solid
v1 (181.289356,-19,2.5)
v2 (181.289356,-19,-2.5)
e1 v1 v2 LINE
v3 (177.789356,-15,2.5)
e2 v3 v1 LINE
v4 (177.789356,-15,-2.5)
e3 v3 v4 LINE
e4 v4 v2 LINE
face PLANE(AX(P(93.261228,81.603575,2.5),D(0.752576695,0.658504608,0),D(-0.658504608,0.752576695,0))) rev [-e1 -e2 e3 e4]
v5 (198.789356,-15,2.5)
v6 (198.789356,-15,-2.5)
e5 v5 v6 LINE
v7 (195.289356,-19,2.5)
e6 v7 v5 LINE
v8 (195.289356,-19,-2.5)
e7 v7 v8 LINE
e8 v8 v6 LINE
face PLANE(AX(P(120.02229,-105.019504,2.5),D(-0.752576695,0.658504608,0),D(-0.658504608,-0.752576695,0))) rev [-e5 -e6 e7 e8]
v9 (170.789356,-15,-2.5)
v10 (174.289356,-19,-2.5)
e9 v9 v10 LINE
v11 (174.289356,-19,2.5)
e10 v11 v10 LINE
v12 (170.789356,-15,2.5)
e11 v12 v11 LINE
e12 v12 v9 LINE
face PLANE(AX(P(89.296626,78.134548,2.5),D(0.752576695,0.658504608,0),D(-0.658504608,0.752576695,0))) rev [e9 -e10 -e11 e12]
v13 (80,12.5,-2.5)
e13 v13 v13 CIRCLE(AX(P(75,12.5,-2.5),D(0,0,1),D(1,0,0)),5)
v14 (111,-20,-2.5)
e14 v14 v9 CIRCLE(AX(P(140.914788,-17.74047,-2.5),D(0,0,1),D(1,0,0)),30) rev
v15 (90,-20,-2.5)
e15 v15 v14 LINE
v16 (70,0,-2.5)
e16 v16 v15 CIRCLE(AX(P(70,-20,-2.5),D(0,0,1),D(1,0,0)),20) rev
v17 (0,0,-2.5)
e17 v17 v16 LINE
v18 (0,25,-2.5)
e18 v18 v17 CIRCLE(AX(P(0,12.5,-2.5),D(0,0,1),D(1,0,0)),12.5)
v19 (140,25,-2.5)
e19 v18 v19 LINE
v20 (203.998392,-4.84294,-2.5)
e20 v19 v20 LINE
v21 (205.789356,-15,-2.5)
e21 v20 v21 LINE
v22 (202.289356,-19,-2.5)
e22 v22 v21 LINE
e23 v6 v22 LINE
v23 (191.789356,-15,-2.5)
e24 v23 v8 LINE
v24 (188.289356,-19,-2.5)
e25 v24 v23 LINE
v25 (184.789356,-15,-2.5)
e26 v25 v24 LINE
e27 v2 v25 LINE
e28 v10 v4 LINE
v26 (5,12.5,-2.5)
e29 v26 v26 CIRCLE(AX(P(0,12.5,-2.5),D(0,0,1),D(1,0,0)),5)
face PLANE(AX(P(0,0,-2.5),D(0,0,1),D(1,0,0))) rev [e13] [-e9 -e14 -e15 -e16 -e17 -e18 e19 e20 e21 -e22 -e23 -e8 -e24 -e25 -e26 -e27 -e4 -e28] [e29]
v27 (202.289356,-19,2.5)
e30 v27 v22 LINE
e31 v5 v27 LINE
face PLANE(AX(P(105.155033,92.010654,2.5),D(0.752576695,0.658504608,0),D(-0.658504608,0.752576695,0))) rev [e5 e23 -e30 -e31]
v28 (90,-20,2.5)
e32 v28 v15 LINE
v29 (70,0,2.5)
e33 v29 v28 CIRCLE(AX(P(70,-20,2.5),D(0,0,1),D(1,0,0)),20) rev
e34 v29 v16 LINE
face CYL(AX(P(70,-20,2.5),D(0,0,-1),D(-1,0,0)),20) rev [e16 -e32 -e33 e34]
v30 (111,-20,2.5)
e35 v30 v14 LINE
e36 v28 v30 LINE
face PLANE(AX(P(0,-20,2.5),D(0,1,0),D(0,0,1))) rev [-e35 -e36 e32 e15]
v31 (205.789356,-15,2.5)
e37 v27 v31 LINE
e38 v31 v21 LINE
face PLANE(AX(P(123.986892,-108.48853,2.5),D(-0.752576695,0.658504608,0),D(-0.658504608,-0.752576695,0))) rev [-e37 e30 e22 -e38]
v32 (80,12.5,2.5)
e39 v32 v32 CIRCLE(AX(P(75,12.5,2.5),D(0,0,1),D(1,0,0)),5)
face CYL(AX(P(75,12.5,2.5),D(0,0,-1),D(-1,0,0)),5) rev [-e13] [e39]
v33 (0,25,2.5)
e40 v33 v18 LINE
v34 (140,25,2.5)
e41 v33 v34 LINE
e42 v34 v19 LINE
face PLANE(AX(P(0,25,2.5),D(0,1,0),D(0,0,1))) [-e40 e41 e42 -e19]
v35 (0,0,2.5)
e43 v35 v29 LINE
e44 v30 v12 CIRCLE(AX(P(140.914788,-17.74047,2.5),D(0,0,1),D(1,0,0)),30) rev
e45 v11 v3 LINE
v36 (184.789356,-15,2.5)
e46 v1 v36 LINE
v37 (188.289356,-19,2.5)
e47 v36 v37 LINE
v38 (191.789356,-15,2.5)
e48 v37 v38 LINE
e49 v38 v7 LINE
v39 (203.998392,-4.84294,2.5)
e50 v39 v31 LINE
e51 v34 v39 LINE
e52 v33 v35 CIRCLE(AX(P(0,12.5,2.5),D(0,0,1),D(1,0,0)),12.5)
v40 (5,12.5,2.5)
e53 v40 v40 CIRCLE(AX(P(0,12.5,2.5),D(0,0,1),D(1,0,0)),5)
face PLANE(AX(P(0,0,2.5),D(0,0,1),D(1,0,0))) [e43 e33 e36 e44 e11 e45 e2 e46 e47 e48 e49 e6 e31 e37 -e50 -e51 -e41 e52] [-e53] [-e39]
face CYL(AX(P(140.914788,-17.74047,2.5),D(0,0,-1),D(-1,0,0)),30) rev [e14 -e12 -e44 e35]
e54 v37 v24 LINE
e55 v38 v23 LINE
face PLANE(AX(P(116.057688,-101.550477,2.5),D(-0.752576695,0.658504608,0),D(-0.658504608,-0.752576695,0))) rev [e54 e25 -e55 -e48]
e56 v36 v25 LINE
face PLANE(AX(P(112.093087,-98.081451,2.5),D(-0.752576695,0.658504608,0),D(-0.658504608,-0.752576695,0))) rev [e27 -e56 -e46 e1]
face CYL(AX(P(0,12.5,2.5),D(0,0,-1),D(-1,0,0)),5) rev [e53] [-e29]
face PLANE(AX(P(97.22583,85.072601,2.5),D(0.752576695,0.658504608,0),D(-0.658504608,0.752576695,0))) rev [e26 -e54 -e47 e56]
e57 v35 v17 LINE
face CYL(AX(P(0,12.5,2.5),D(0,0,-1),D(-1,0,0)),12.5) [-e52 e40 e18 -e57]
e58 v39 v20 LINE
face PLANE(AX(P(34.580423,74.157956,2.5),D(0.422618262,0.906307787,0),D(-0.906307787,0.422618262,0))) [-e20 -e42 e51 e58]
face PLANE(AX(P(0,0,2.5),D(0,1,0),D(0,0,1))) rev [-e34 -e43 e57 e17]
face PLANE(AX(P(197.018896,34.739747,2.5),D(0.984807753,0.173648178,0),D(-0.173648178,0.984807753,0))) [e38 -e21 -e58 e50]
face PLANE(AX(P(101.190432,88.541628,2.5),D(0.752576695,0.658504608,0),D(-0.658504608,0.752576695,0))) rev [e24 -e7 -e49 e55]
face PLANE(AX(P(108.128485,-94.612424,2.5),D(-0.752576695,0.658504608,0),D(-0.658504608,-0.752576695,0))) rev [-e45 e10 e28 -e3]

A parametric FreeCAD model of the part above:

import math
import FreeCAD as App
import Part
import Sketcher
from FreeCAD import Vector
Q = App.Units.Quantity

doc = App.newDocument("Part")
body = doc.addObject("PartDesign::Body", "Body")

# Sketch on XY plane
sketch1 = body.newObject("Sketcher::SketchObject", "Sketch")
sketch1.AttachmentSupport = (doc.getObject("XY_Plane"), [""])
sketch1.MapMode = "FlatFace"
sketch1.addGeometry(Part.LineSegment(Vector(140, 25, 0), Vector(0, 25, 0)), False)
sketch1.addGeometry(Part.ArcOfCircle(Part.Circle(Vector(0, 12.5, 0), Vector(0, 0, 1), 12.5), math.radians(90), math.radians(270)), False)
sketch1.addGeometry(Part.LineSegment(Vector(0, 0, 0), Vector(70, 0, 0)), False)
sketch1.addGeometry(Part.ArcOfCircle(Part.Circle(Vector(70, -20, 0), Vector(0, 0, 1), 20), math.radians(0), math.radians(90)), False)
sketch1.addGeometry(Part.LineSegment(Vector(90, -20, 0), Vector(111, -20, 0)), False)
sketch1.addGeometry(Part.ArcOfCircle(Part.Circle(Vector(140.914788, -17.74047, 0), Vector(0, 0, 1), 30), math.radians(5.241218), math.radians(184.319475)), False)
sketch1.addGeometry(Part.LineSegment(Vector(170.789356, -15, 0), Vector(174.289356, -19, 0)), False)
sketch1.addGeometry(Part.LineSegment(Vector(174.289356, -19, 0), Vector(177.789356, -15, 0)), False)
sketch1.addGeometry(Part.LineSegment(Vector(177.789356, -15, 0), Vector(181.289356, -19, 0)), False)
sketch1.addGeometry(Part.LineSegment(Vector(181.289356, -19, 0), Vector(184.789356, -15, 0)), False)
sketch1.addGeometry(Part.LineSegment(Vector(184.789356, -15, 0), Vector(188.289356, -19, 0)), False)
sketch1.addGeometry(Part.LineSegment(Vector(188.289356, -19, 0), Vector(191.789356, -15, 0)), False)
sketch1.addGeometry(Part.LineSegment(Vector(191.789356, -15, 0), Vector(195.289356, -19, 0)), False)
sketch1.addGeometry(Part.LineSegment(Vector(195.289356, -19, 0), Vector(198.789356, -15, 0)), False)
sketch1.addGeometry(Part.LineSegment(Vector(198.789356, -15, 0), Vector(202.289356, -19, 0)), False)
sketch1.addGeometry(Part.LineSegment(Vector(202.289356, -19, 0), Vector(205.789356, -15, 0)), False)
sketch1.addGeometry(Part.LineSegment(Vector(205.789356, -15, 0), Vector(203.998392, -4.84294, 0)), False)
sketch1.addGeometry(Part.LineSegment(Vector(203.998392, -4.84294, 0), Vector(140, 25, 0)), False)
sketch1.addGeometry(Part.Circle(Vector(75, 12.5, 0), Vector(0, 0, 1), 5), False)
sketch1.addGeometry(Part.Circle(Vector(0, 12.5, 0), Vector(0, 0, 1), 5), False)
sketch1.addConstraint(Sketcher.Constraint("Coincident", 0, 2, 1, 1))
sketch1.addConstraint(Sketcher.Constraint("Coincident", 1, 2, 2, 1))
sketch1.addConstraint(Sketcher.Constraint("Coincident", 2, 2, 3, 2))
sketch1.addConstraint(Sketcher.Constraint("Coincident", 3, 1, 4, 1))
sketch1.addConstraint(Sketcher.Constraint("Coincident", 4, 2, 5, 2))
sketch1.addConstraint(Sketcher.Constraint("Coincident", 5, 1, 6, 1))
sketch1.addConstraint(Sketcher.Constraint("Coincident", 6, 2, 7, 1))
sketch1.addConstraint(Sketcher.Constraint("Coincident", 7, 2, 8, 1))
sketch1.addConstraint(Sketcher.Constraint("Coincident", 8, 2, 9, 1))
sketch1.addConstraint(Sketcher.Constraint("Coincident", 9, 2, 10, 1))
sketch1.addConstraint(Sketcher.Constraint("Coincident", 10, 2, 11, 1))
sketch1.addConstraint(Sketcher.Constraint("Coincident", 11, 2, 12, 1))
sketch1.addConstraint(Sketcher.Constraint("Coincident", 12, 2, 13, 1))
sketch1.addConstraint(Sketcher.Constraint("Coincident", 13, 2, 14, 1))
sketch1.addConstraint(Sketcher.Constraint("Coincident", 14, 2, 15, 1))
sketch1.addConstraint(Sketcher.Constraint("Coincident", 15, 2, 16, 1))
sketch1.addConstraint(Sketcher.Constraint("Coincident", 16, 2, 17, 1))
sketch1.addConstraint(Sketcher.Constraint("Coincident", 17, 2, 0, 1))
sketch1.addConstraint(Sketcher.Constraint("Horizontal", 0))
sketch1.addConstraint(Sketcher.Constraint("Horizontal", 2))
sketch1.addConstraint(Sketcher.Constraint("Horizontal", 4))
sketch1.addConstraint(Sketcher.Constraint("Coincident", 1, 2, -1, 1))
sketch1.addConstraint(Sketcher.Constraint("Coincident", 19, 3, 1, 3))
sketch1.addConstraint(Sketcher.Constraint("PointOnObject", 1, 3, -2))
sketch1.addConstraint(Sketcher.Constraint("PointOnObject", 0, 2, -2))
sketch1.addConstraint(Sketcher.Constraint("Diameter", 18, Q("10 mm")))
sketch1.addConstraint(Sketcher.Constraint("Diameter", 19, Q("10 mm")))
sketch1.addConstraint(Sketcher.Constraint("Radius", 3, Q("20 mm")))
sketch1.addConstraint(Sketcher.Constraint("Radius", 5, Q("30 mm")))
sketch1.addConstraint(Sketcher.Constraint("Radius", 1, Q("12.5 mm")))
sketch1.addConstraint(Sketcher.Constraint("DistanceX", 0, 2, 0, 1, Q("140 mm")))
sketch1.addConstraint(Sketcher.Constraint("DistanceX", 2, 1, 2, 2, Q("70 mm")))
sketch1.addConstraint(Sketcher.Constraint("DistanceX", 4, 1, 4, 2, Q("21 mm")))
sketch1.addConstraint(Sketcher.Constraint("DistanceX", -1, 1, 3, 3, Q("70 mm")))
sketch1.addConstraint(Sketcher.Constraint("DistanceX", -1, 1, 18, 3, Q("75 mm")))
sketch1.addConstraint(Sketcher.Constraint("DistanceY", 3, 1, -1, 1, Q("20 mm")))
sketch1.addConstraint(Sketcher.Constraint("DistanceY", 5, 1, -1, 1, Q("15 mm")))
sketch1.addConstraint(Sketcher.Constraint("DistanceY", 6, 2, -1, 1, Q("19 mm")))
sketch1.addConstraint(Sketcher.Constraint("DistanceY", 7, 2, -1, 1, Q("15 mm")))
sketch1.addConstraint(Sketcher.Constraint("DistanceY", 8, 2, -1, 1, Q("19 mm")))
sketch1.addConstraint(Sketcher.Constraint("DistanceY", 9, 2, -1, 1, Q("15 mm")))
sketch1.addConstraint(Sketcher.Constraint("DistanceY", 10, 2, -1, 1, Q("19 mm")))
sketch1.addConstraint(Sketcher.Constraint("DistanceY", 11, 2, -1, 1, Q("15 mm")))
sketch1.addConstraint(Sketcher.Constraint("DistanceY", 12, 2, -1, 1, Q("19 mm")))
sketch1.addConstraint(Sketcher.Constraint("DistanceY", 13, 2, -1, 1, Q("15 mm")))
sketch1.addConstraint(Sketcher.Constraint("DistanceY", 14, 2, -1, 1, Q("19 mm")))
sketch1.addConstraint(Sketcher.Constraint("DistanceY", 15, 2, -1, 1, Q("15 mm")))
sketch1.addConstraint(Sketcher.Constraint("DistanceX", 5, 1, 7, 2, Q("7 mm")))
sketch1.addConstraint(Sketcher.Constraint("DistanceX", 6, 2, 8, 2, Q("7 mm")))
sketch1.addConstraint(Sketcher.Constraint("DistanceX", 7, 2, 9, 2, Q("7 mm")))
sketch1.addConstraint(Sketcher.Constraint("DistanceX", 8, 2, 10, 2, Q("7 mm")))
sketch1.addConstraint(Sketcher.Constraint("DistanceX", 9, 2, 11, 2, Q("7 mm")))
sketch1.addConstraint(Sketcher.Constraint("DistanceX", 10, 2, 12, 2, Q("7 mm")))
sketch1.addConstraint(Sketcher.Constraint("DistanceX", 11, 2, 13, 2, Q("7 mm")))
sketch1.addConstraint(Sketcher.Constraint("DistanceX", 12, 2, 14, 2, Q("7 mm")))
sketch1.addConstraint(Sketcher.Constraint("DistanceX", 13, 2, 15, 2, Q("7 mm")))
sketch1.addConstraint(Sketcher.Constraint("DistanceY", -1, 1, 18, 3, Q("12.5 mm")))
sketch1.addConstraint(Sketcher.Constraint("DistanceX", 5, 1, 6, 2, Q("3.5 mm")))
sketch1.addConstraint(Sketcher.Constraint("Distance", 16, Q("10.313749 mm")))
sketch1.addConstraint(Sketcher.Constraint("DistanceY", 5, 3, -1, 1, Q("17.74047 mm")))
sketch1.addConstraint(Sketcher.Constraint("DistanceY", 16, 2, -1, 1, Q("4.84294 mm")))
pad1 = body.newObject("PartDesign::Pad", "Pad")
pad1.Profile = sketch1
pad1.Length = 5
pad1.Midplane = True

doc.recompute()
